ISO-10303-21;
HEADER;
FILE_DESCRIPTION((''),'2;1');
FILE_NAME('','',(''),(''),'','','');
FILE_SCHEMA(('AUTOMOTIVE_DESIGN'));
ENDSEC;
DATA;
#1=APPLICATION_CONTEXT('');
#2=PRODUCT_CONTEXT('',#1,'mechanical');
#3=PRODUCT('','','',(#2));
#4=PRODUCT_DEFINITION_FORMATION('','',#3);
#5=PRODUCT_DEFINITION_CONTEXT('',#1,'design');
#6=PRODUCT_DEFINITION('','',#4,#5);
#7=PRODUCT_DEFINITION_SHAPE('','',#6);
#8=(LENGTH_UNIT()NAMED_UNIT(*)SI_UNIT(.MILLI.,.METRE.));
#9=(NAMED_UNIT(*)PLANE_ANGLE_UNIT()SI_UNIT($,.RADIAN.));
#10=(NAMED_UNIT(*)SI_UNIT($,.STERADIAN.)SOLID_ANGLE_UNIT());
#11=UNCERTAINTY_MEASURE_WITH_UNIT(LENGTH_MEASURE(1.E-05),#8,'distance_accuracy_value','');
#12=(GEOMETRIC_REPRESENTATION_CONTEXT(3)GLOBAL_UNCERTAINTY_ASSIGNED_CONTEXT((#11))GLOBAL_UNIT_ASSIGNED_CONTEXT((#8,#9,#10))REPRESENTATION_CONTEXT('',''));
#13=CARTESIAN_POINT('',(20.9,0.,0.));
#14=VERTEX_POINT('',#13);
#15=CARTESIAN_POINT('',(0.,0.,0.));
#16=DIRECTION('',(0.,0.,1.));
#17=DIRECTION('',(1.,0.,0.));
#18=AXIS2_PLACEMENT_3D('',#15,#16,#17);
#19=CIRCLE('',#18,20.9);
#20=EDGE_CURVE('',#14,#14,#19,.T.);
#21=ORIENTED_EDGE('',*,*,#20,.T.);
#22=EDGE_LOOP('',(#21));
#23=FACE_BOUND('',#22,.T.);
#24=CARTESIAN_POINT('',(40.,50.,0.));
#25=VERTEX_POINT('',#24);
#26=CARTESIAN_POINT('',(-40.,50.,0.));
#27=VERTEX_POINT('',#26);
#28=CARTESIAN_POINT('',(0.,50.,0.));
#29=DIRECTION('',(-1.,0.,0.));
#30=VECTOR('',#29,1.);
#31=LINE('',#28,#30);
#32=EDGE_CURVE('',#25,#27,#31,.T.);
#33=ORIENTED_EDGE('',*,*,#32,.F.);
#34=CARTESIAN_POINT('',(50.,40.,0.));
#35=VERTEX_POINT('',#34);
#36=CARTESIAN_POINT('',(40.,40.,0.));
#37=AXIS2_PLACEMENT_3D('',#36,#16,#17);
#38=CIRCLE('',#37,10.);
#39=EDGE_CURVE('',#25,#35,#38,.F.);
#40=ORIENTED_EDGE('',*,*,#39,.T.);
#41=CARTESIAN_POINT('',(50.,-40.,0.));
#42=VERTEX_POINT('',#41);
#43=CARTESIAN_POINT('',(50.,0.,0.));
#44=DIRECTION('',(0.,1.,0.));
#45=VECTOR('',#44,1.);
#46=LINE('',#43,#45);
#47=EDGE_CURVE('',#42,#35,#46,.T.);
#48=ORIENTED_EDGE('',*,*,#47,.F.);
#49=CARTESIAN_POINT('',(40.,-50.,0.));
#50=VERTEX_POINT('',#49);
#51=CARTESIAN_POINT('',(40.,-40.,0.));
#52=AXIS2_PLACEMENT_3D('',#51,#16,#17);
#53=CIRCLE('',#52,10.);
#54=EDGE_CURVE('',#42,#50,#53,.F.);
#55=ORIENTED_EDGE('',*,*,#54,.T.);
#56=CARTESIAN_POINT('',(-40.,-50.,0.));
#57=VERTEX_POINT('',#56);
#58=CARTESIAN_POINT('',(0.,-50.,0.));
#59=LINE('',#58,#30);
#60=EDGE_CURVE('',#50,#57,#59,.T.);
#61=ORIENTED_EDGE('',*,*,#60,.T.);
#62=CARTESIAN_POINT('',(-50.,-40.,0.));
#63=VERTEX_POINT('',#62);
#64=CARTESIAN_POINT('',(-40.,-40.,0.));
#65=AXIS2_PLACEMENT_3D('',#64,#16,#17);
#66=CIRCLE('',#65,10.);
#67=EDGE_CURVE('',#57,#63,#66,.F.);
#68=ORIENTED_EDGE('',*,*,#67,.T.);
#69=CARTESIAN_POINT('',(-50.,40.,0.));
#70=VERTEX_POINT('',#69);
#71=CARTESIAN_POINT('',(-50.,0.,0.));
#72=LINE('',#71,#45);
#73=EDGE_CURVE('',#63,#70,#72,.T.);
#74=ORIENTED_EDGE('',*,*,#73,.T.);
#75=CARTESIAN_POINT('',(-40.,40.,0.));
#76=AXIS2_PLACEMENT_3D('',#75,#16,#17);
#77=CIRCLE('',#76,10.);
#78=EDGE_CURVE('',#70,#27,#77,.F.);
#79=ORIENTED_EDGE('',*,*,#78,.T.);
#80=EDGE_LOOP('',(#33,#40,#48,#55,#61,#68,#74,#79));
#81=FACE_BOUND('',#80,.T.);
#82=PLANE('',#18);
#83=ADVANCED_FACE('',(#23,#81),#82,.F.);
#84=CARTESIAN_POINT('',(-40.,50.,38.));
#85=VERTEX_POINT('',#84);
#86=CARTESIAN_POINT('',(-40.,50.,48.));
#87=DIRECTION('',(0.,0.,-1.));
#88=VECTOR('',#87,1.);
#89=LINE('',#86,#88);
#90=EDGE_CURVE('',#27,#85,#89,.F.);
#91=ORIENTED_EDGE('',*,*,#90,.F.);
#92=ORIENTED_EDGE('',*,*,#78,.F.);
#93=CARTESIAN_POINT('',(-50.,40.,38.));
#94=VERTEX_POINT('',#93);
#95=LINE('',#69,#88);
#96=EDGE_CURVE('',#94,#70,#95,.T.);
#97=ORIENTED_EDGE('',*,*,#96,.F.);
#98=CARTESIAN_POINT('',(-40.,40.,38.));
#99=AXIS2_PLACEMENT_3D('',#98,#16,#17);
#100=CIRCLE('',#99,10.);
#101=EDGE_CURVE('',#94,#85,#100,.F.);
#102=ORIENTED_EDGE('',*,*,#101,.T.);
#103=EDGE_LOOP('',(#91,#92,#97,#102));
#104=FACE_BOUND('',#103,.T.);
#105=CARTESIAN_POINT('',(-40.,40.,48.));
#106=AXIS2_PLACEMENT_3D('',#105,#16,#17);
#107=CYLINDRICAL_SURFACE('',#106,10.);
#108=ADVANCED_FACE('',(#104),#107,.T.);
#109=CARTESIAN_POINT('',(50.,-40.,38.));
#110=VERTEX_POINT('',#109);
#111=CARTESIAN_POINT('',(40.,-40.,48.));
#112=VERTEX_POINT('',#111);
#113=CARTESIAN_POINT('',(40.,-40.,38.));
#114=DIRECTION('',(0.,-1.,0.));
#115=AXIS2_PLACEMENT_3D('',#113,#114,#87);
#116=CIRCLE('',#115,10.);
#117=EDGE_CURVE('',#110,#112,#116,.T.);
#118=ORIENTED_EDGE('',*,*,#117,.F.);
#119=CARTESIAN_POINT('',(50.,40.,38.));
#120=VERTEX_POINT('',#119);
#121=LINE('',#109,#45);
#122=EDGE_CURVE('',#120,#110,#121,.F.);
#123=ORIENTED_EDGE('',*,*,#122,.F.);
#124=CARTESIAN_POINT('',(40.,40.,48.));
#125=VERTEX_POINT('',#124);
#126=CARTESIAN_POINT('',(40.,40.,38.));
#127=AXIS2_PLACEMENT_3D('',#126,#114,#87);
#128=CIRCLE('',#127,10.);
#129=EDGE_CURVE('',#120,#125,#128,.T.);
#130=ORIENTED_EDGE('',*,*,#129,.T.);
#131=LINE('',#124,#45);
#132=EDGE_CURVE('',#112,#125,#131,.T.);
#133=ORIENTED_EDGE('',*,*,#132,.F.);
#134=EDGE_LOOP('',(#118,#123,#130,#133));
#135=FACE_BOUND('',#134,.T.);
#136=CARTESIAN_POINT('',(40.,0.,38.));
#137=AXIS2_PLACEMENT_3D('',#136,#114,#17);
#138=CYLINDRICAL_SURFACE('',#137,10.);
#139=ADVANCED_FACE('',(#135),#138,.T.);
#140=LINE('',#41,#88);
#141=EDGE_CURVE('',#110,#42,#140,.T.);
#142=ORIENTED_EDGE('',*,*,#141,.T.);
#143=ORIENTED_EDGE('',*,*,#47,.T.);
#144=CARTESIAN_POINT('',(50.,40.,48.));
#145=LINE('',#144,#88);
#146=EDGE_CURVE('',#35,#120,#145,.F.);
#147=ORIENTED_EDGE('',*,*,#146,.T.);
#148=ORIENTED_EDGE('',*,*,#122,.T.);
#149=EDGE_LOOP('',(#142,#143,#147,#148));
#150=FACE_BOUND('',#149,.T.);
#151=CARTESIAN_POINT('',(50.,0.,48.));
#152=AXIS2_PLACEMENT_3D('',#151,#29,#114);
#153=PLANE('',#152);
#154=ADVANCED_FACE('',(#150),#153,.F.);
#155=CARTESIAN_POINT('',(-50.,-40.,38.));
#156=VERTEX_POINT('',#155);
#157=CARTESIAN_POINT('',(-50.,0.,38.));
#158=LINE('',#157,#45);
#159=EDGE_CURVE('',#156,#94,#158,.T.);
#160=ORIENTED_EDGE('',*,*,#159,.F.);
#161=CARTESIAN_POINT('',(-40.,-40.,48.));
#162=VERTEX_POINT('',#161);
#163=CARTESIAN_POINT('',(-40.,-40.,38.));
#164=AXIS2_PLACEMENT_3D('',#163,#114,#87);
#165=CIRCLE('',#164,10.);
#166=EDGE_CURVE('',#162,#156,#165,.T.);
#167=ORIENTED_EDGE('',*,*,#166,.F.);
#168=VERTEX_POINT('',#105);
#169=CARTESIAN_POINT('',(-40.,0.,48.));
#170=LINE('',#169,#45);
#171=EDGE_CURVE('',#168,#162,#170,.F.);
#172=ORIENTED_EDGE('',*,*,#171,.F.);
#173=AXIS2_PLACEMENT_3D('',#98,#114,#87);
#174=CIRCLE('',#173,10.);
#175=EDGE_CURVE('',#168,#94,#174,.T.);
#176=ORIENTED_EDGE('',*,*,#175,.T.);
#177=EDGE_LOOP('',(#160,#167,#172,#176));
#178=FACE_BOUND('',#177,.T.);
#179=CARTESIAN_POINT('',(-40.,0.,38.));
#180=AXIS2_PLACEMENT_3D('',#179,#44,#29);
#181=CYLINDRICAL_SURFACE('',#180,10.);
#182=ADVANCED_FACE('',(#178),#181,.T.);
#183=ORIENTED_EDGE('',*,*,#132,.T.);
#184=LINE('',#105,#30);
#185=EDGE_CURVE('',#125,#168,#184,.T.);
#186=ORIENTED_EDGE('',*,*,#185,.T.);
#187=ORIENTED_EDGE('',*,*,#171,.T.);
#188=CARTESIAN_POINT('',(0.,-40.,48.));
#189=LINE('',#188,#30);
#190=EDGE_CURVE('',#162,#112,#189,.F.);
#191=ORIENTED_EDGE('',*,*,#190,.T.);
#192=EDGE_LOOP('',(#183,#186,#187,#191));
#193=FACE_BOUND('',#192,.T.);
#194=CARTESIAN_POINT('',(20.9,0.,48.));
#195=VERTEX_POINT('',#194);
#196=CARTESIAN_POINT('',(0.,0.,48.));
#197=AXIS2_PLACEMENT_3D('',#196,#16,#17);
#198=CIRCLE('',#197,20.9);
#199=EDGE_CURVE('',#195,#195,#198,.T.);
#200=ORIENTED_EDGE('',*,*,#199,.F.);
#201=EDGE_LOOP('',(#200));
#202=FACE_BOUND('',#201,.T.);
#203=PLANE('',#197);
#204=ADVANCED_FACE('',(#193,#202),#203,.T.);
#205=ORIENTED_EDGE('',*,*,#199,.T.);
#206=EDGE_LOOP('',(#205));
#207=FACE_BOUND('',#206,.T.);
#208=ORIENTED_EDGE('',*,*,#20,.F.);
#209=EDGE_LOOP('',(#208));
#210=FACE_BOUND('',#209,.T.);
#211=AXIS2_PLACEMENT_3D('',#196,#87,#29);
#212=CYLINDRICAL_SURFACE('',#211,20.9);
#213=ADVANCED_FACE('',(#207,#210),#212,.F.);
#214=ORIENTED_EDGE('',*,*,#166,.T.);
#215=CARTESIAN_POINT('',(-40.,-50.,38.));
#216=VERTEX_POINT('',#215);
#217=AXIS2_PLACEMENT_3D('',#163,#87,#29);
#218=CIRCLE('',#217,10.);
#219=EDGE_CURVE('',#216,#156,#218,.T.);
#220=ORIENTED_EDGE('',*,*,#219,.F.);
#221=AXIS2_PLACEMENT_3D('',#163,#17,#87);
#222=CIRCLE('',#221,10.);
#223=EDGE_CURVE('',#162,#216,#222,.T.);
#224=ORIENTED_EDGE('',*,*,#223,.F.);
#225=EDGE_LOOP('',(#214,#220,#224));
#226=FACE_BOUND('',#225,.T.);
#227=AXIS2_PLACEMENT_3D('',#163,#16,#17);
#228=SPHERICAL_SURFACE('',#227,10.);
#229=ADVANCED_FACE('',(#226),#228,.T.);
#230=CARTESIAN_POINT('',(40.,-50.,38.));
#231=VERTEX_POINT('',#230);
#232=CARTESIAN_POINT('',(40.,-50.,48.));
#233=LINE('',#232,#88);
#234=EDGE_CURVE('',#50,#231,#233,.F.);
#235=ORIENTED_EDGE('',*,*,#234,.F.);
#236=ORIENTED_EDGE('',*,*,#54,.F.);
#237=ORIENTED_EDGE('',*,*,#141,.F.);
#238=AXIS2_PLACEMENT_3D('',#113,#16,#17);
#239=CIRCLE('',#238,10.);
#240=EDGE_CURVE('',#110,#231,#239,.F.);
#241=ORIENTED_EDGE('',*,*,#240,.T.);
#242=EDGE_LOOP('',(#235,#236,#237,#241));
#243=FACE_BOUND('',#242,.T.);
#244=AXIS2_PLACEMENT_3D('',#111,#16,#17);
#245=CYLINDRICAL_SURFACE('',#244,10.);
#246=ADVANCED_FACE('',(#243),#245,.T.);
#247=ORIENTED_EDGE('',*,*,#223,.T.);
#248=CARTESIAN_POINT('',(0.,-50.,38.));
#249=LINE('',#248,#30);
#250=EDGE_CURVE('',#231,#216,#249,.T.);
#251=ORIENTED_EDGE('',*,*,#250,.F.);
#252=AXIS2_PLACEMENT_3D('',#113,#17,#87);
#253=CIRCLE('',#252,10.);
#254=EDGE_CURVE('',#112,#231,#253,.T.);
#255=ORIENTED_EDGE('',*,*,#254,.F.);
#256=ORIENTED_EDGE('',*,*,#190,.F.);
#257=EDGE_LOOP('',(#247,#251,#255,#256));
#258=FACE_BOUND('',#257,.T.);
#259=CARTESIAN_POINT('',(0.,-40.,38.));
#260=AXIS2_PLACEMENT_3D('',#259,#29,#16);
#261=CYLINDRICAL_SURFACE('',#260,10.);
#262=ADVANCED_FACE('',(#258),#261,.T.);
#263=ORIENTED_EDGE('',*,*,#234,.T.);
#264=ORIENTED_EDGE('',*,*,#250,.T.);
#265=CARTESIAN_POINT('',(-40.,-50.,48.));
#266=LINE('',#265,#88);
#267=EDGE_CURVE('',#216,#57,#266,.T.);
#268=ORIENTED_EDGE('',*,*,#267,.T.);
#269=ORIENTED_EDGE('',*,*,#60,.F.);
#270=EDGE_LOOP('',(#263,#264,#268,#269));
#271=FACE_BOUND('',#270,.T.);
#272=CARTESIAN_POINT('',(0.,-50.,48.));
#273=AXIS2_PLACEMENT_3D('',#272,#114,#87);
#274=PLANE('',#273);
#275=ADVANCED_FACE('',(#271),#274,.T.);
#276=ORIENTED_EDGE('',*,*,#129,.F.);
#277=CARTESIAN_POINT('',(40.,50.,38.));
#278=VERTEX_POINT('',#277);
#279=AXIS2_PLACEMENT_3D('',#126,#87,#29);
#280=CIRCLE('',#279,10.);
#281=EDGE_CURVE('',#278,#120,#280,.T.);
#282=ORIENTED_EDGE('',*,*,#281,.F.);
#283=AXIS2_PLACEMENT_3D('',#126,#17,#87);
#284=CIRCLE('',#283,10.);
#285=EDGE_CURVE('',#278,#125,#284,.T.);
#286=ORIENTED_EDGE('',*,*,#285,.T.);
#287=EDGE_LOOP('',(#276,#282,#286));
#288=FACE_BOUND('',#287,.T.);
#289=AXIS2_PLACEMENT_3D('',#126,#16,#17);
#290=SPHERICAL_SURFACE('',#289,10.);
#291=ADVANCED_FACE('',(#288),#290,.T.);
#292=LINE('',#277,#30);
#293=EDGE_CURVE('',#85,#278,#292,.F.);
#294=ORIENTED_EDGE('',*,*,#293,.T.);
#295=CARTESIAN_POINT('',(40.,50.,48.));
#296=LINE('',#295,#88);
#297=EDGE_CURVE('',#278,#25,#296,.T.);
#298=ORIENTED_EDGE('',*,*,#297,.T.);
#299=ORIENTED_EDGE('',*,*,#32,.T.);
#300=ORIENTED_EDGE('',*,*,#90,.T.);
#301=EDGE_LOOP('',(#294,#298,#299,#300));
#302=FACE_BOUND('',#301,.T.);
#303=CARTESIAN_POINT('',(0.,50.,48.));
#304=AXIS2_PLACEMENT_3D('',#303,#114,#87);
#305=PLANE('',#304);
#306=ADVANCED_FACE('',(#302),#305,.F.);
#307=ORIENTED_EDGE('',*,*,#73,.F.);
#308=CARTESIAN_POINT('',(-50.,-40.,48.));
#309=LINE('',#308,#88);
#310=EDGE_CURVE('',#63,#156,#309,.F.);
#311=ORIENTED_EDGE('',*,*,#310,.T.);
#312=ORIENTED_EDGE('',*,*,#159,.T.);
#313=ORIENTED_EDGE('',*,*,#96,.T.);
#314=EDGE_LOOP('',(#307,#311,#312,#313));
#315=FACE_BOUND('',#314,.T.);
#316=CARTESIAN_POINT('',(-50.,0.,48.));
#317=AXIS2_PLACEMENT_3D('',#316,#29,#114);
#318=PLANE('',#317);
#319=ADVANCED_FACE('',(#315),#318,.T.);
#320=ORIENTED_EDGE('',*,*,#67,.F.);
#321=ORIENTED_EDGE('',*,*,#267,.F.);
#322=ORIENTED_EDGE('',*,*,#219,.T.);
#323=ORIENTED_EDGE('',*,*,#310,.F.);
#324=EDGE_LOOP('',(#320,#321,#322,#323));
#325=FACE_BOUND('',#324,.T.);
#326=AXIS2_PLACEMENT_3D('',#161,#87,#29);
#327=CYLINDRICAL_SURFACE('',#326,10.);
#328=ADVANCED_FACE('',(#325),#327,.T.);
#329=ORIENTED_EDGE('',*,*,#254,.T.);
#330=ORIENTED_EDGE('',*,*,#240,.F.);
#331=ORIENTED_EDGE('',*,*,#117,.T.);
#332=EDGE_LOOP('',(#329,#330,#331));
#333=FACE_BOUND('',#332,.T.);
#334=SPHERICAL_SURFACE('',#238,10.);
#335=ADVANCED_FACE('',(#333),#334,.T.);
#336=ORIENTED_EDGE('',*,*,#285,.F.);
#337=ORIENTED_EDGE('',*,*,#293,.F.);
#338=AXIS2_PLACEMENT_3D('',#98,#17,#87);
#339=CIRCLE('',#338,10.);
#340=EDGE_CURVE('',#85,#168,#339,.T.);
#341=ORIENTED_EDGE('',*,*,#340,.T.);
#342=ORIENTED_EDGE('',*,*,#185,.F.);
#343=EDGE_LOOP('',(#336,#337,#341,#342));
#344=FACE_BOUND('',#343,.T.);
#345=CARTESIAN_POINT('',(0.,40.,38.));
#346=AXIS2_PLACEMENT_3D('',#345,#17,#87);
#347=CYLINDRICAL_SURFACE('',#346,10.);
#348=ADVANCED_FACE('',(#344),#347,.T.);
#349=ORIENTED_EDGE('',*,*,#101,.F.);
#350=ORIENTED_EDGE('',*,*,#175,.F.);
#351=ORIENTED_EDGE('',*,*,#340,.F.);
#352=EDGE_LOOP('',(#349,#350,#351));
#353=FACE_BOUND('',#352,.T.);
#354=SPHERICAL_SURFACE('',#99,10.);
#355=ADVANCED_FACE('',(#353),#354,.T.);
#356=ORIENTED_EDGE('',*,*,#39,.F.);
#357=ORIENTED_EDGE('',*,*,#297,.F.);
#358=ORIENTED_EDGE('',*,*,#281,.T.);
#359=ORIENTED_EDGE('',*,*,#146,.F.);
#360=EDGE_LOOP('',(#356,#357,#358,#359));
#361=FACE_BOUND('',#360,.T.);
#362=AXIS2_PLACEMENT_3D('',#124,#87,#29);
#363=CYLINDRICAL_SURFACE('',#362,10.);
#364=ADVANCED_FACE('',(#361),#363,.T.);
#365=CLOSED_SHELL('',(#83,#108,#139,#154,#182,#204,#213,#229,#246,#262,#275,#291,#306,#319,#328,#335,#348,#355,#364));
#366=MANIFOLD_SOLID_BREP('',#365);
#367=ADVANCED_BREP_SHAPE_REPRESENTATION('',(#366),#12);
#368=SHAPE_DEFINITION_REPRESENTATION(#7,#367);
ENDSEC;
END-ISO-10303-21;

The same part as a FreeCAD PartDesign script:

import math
import FreeCAD as App
import Part
import Sketcher

V = App.Vector


def edges_at(feature, points):
    """Names of the edges that pass closest to the given points."""
    edges = feature.Shape.Edges
    near = lambda p: min(range(len(edges)), key=lambda i: edges[i].distToShape(Part.Vertex(*p))[0])
    return sorted({f"Edge{near(p) + 1}" for p in points})


def add_polygon(sketch, points):
    """Adds a closed chain of lines whose ends are joined by coincident constraints."""
    first, n = sketch.GeometryCount, len(points)
    for a, b in zip(points, points[1:] + points[:1]):
        sketch.addGeometry(Part.LineSegment(App.Vector(*a, 0), App.Vector(*b, 0)), False)
    for i in range(n):
        sketch.addConstraint(Sketcher.Constraint("Coincident", first + i, 2, first + (i + 1) % n, 1))

doc = App.newDocument("Part")
body = doc.addObject("PartDesign::Body", "Body")

sketch1 = body.newObject("Sketcher::SketchObject", "Sketch")
sketch1.AttachmentSupport = (doc.getObject("XY_Plane"), [""])
sketch1.MapMode = "FlatFace"
add_polygon(sketch1, [(-50, 50), (-50, -50), (50, -50), (50, 50)])
sketch1.addGeometry(Part.ArcOfCircle(Part.Circle(V(0, 0, 0), V(0, 0, 1), 20.9), math.radians(90), math.radians(180)), False)
sketch1.addGeometry(Part.ArcOfCircle(Part.Circle(V(0, 0, 0), V(0, 0, 1), 20.9), math.radians(0), math.radians(90)), False)
sketch1.addGeometry(Part.ArcOfCircle(Part.Circle(V(0, 0, 0), V(0, 0, 1), 20.9), math.radians(-90), math.radians(0)), False)
sketch1.addGeometry(Part.ArcOfCircle(Part.Circle(V(0, 0, 0), V(0, 0, 1), 20.9), math.radians(180), math.radians(270)), False)
sketch1.addConstraint([
    Sketcher.Constraint("Tangent", 4, 1, 5, 2),
    Sketcher.Constraint("Tangent", 5, 1, 6, 2),
    Sketcher.Constraint("Tangent", 6, 1, 7, 2),
    Sketcher.Constraint("Tangent", 7, 1, 4, 2),
    Sketcher.Constraint("Vertical", 0),
    Sketcher.Constraint("Horizontal", 1),
    Sketcher.Constraint("Vertical", 2),
    Sketcher.Constraint("Horizontal", 3),
    Sketcher.Constraint("Coincident", 4, 3, -1, 1),
    Sketcher.Constraint("Equal", 4, 5),
    Sketcher.Constraint("Symmetric", 0, 2, 2, 2, -1, 1),
    Sketcher.Constraint("PointOnObject", 4, 1, -2),
    Sketcher.Constraint("PointOnObject", 5, 1, -1),
    Sketcher.Constraint("PointOnObject", 6, 1, -2),
    Sketcher.Constraint("PointOnObject", 7, 1, -1),
    Sketcher.Constraint("Equal", 3, 0),
    Sketcher.Constraint("Radius", 4, 20.9),
    Sketcher.Constraint("DistanceX", 1, 1, 1, 2, 100.0),
])
pad1 = body.newObject("PartDesign::Pad", "Pad")
pad1.Profile = sketch1
pad1.Length = 48
doc.recompute()

fillet = body.newObject("PartDesign::Fillet", "Fillet")
fillet.Base = (pad1, edges_at(pad1, [
    (-50, -50, 24),
    (-50, 50, 24),
    (50, 50, 24),
    (50, -50, 24),
]))
fillet.Radius = 10
doc.recompute()

fillet2 = body.newObject("PartDesign::Fillet", "Fillet001")
fillet2.Base = (fillet, edges_at(fillet, [
    (0, 50, 48),
    (50, 0, 48),
    (0, -50, 48),
    (-50, 0, 48),
    (-47.071, 47.071, 48),
    (-47.071, -47.071, 48),
    (47.071, -47.071, 48),
    (47.071, 47.071, 48),
]))
fillet2.Radius = 10

doc.recompute()
